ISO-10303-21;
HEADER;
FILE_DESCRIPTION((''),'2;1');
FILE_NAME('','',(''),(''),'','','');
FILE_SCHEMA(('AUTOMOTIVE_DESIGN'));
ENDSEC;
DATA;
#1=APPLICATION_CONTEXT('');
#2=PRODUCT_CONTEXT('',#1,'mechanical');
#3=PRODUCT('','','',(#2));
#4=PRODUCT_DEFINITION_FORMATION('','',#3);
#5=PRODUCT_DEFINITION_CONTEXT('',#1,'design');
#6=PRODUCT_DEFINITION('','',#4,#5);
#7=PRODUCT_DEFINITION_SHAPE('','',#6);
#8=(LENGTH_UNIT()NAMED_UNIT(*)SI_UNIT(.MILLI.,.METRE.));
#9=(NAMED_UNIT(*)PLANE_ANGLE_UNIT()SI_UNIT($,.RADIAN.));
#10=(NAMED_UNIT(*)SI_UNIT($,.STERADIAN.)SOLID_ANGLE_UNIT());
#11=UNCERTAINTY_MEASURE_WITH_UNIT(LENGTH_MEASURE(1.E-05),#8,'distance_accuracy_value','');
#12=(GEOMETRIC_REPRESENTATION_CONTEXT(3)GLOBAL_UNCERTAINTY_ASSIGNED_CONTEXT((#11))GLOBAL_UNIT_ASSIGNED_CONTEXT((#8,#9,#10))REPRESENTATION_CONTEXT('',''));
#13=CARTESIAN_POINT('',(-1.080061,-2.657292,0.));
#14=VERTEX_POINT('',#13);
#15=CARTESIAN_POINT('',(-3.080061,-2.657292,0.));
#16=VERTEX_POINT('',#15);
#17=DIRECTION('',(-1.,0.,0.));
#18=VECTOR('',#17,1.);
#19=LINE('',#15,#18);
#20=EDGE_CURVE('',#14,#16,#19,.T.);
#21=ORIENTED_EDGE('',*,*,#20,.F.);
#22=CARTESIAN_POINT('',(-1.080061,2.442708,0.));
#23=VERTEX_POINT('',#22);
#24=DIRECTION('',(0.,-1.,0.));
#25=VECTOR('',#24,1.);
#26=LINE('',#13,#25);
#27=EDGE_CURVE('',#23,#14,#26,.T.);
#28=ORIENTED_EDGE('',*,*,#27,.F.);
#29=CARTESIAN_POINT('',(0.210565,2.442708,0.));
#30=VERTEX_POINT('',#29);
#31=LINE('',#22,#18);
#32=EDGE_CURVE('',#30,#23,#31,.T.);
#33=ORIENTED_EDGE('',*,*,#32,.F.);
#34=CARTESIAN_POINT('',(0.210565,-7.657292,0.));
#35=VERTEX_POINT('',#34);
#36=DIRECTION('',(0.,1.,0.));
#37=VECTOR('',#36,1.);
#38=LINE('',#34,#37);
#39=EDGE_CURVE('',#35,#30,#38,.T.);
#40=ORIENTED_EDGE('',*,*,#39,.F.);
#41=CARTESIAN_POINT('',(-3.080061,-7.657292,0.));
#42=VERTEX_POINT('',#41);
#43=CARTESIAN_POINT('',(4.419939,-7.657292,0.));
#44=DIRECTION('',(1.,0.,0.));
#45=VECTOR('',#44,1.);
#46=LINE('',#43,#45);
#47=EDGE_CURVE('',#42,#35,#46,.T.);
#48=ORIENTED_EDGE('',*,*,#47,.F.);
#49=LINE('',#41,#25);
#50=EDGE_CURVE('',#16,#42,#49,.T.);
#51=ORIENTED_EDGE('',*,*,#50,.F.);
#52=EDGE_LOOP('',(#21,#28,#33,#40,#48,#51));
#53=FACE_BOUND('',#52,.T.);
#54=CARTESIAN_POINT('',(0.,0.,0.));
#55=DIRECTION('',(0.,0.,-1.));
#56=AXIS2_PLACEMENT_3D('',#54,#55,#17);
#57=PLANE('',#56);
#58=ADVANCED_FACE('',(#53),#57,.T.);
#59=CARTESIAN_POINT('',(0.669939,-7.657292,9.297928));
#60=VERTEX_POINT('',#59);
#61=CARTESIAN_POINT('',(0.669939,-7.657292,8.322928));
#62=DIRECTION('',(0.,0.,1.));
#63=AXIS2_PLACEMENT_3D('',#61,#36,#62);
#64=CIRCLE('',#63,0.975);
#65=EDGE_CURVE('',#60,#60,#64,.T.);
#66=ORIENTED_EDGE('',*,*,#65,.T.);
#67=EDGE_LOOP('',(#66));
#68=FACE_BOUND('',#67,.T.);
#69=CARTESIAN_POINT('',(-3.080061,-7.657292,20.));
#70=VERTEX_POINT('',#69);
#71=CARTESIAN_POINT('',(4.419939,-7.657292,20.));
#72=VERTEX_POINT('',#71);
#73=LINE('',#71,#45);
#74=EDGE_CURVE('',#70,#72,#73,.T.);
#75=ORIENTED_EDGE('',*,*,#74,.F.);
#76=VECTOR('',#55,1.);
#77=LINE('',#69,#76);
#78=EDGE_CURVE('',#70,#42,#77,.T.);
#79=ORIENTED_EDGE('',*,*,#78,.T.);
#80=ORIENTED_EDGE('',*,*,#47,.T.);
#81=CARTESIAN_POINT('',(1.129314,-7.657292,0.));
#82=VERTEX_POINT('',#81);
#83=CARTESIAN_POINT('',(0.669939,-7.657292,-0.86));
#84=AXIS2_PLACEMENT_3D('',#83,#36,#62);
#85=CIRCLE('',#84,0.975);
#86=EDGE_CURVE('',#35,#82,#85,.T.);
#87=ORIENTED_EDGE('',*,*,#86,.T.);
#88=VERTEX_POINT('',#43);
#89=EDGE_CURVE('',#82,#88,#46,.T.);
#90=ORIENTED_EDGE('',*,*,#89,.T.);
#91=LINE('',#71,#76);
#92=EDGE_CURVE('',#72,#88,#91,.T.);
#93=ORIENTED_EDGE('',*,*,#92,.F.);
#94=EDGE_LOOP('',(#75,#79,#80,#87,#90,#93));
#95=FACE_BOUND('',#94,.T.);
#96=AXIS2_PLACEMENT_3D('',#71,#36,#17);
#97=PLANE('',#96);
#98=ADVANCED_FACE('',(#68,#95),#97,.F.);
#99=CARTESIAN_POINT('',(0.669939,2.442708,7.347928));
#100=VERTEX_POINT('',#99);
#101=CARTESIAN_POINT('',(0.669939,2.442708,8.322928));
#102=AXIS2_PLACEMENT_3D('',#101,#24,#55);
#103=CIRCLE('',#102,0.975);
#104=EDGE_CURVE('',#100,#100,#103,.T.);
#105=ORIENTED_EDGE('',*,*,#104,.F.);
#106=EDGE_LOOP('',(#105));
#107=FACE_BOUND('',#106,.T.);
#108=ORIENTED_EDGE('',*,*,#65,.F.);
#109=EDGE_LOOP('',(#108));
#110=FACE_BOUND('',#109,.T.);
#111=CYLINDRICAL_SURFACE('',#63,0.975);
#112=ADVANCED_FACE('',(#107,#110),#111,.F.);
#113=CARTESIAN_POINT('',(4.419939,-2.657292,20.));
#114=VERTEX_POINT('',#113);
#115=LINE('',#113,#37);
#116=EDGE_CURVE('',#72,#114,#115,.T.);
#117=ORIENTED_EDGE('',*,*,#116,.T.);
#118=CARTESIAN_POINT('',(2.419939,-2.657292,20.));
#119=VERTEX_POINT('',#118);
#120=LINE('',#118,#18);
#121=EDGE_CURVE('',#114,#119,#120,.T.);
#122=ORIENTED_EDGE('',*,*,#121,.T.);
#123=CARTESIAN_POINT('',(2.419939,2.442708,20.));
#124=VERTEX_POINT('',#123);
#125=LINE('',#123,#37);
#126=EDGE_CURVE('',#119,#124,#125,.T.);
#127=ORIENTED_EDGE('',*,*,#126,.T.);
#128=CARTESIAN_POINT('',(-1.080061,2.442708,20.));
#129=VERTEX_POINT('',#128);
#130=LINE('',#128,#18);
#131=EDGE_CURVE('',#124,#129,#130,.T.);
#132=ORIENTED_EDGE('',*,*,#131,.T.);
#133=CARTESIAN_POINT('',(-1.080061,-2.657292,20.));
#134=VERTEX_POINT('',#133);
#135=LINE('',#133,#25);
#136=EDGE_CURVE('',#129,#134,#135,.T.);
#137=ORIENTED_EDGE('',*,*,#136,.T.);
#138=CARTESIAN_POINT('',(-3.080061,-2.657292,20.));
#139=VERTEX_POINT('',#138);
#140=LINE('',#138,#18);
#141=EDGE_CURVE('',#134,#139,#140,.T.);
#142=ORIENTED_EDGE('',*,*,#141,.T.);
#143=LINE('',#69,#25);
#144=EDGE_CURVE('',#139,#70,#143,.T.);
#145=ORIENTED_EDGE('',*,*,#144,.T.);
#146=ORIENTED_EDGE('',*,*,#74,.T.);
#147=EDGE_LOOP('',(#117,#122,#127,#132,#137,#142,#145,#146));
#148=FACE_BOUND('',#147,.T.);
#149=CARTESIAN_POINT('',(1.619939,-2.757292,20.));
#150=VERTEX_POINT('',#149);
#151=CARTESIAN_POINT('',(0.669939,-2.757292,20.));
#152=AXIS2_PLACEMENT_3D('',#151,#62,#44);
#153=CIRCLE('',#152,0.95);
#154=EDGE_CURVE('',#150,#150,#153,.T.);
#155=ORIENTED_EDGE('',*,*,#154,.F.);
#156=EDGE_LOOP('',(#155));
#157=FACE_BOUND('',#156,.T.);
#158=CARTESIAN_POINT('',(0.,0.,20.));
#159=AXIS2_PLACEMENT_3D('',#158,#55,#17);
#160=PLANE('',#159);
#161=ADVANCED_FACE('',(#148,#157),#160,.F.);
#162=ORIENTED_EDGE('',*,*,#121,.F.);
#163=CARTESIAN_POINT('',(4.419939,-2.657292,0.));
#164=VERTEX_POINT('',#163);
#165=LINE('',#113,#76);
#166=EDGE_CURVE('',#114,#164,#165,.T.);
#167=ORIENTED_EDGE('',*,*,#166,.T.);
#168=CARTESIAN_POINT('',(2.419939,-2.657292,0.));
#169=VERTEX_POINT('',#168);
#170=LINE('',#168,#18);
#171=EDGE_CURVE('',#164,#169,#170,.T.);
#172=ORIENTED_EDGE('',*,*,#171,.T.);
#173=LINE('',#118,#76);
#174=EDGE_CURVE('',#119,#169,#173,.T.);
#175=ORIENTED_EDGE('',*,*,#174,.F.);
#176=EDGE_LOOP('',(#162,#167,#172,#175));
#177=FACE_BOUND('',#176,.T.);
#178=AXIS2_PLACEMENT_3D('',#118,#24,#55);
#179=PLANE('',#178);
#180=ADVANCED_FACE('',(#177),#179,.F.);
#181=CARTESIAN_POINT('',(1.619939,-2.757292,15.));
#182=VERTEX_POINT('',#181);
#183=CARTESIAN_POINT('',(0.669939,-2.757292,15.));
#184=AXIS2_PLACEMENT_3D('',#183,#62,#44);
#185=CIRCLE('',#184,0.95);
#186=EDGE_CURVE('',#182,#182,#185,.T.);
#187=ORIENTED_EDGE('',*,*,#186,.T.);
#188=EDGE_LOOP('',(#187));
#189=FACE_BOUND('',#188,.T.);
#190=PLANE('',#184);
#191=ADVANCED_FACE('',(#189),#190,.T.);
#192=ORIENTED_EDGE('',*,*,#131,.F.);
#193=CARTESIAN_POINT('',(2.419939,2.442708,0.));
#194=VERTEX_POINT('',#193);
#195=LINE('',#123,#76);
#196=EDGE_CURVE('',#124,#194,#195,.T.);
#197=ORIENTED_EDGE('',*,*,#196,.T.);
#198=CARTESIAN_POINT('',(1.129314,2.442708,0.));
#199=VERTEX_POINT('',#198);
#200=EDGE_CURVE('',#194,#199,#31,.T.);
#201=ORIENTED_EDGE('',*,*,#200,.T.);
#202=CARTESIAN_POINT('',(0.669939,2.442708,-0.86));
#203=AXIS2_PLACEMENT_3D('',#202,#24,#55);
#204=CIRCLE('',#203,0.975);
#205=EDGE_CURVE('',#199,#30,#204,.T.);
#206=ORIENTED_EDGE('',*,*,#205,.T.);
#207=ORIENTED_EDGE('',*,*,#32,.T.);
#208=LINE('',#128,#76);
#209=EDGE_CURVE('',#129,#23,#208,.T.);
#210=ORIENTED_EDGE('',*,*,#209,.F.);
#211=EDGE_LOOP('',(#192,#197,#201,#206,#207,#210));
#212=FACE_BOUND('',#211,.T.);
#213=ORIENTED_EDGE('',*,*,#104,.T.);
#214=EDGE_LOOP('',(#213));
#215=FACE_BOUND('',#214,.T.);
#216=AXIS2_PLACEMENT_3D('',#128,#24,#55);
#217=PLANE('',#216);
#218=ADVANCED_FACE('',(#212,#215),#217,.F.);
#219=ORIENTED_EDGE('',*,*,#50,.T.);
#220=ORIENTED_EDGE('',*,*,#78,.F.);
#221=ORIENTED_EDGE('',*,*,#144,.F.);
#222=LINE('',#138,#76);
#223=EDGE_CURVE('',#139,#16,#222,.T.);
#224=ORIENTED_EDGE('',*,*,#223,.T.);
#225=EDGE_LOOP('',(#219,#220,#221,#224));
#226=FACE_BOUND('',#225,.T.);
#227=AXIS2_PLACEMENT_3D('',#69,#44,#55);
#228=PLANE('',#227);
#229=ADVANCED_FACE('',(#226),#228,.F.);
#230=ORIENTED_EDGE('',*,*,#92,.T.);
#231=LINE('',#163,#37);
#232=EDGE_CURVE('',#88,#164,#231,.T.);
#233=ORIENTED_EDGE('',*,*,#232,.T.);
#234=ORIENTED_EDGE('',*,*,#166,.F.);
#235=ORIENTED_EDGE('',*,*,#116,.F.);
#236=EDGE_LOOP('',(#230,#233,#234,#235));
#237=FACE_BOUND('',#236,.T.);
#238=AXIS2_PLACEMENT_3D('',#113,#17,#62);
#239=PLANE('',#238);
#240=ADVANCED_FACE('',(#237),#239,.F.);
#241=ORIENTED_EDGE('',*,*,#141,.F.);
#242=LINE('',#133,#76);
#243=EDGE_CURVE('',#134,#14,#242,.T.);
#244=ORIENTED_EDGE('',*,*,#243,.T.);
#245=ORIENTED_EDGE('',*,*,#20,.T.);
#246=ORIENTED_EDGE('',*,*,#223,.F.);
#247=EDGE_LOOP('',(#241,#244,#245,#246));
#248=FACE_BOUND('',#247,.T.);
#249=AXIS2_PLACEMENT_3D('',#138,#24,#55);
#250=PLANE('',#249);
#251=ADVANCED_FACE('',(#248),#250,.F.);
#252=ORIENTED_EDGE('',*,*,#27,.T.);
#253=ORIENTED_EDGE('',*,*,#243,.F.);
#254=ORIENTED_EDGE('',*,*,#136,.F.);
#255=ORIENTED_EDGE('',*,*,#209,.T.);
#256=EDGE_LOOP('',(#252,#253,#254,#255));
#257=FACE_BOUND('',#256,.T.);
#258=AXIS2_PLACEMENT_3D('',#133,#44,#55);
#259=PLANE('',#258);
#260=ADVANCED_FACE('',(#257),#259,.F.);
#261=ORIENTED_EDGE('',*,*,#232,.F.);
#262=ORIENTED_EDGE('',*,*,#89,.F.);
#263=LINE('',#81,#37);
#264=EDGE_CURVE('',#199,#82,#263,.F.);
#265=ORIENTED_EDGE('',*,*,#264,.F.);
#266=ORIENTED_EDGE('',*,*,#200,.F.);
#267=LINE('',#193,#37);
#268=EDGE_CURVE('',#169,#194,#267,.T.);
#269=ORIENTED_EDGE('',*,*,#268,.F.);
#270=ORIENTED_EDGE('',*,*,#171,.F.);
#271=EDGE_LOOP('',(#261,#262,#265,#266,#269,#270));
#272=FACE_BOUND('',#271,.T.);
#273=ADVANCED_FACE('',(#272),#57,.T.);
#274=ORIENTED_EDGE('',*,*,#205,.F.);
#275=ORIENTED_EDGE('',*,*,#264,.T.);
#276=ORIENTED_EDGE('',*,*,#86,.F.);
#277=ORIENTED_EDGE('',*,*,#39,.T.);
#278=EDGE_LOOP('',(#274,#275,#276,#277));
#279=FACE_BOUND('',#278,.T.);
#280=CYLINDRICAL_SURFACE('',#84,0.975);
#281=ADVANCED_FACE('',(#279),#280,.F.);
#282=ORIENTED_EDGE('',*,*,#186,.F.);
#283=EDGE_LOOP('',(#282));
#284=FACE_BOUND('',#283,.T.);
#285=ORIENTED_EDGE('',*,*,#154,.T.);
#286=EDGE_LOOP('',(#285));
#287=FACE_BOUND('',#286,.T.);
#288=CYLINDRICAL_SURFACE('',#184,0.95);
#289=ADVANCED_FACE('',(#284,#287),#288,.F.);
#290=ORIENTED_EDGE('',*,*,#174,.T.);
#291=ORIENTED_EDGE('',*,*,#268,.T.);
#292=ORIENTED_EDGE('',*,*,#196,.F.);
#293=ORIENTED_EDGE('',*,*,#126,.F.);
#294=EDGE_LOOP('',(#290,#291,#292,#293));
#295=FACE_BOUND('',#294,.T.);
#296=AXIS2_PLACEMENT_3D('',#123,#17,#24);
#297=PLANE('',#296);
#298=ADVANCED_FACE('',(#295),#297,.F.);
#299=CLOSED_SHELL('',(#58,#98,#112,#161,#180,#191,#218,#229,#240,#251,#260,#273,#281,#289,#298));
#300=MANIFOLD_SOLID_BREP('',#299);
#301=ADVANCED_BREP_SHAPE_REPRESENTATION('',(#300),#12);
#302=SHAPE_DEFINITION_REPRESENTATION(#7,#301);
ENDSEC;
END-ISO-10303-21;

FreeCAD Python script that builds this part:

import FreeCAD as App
import Part
import Sketcher

V = App.Vector
Q = App.Units.Quantity

doc = App.newDocument("Part")
body = doc.addObject("PartDesign::Body", "Body")

# Sketch on XY plane
sketch1 = body.newObject("Sketcher::SketchObject", "Sketch")
sketch1.AttachmentSupport = (doc.getObject("XY_Plane"), [""])
sketch1.MapMode = "FlatFace"
sketch1.addGeometry([
    Part.LineSegment(V(2.4, 2.4, 0), V(-1.1, 2.4, 0)),  # 0
    Part.LineSegment(V(-1.1, 2.4, 0), V(-1.1, -2.7, 0)),  # 1
    Part.LineSegment(V(-1.1, -2.7, 0), V(-3.1, -2.7, 0)),  # 2
    Part.LineSegment(V(-3.1, -2.7, 0), V(-3.1, -7.7, 0)),  # 3
    Part.LineSegment(V(-3.1, -7.7, 0), V(4.4, -7.7, 0)),  # 4
    Part.LineSegment(V(4.4, -7.7, 0), V(4.4, -2.7, 0)),  # 5
    Part.LineSegment(V(4.4, -2.7, 0), V(2.4, -2.7, 0)),  # 6
    Part.LineSegment(V(2.4, -2.7, 0), V(2.4, 2.4, 0)),  # 7
], False)
sketch1.addConstraint([
    Sketcher.Constraint("Coincident", 0, 2, 1, 1),
    Sketcher.Constraint("Coincident", 1, 2, 2, 1),
    Sketcher.Constraint("Coincident", 2, 2, 3, 1),
    Sketcher.Constraint("Coincident", 3, 2, 4, 1),
    Sketcher.Constraint("Coincident", 4, 2, 5, 1),
    Sketcher.Constraint("Coincident", 5, 2, 6, 1),
    Sketcher.Constraint("Coincident", 6, 2, 7, 1),
    Sketcher.Constraint("Coincident", 7, 2, 0, 1),
    Sketcher.Constraint("Horizontal", 0),
    Sketcher.Constraint("Vertical", 1),
    Sketcher.Constraint("Horizontal", 2),
    Sketcher.Constraint("Vertical", 3),
    Sketcher.Constraint("Horizontal", 4),
    Sketcher.Constraint("Vertical", 5),
    Sketcher.Constraint("Horizontal", 6),
    Sketcher.Constraint("Vertical", 7),
    Sketcher.Constraint("Horizontal", 2, 2, 5, 2),
    Sketcher.Constraint("Equal", 2, 6),
    Sketcher.Constraint("DistanceX", 2, 2, 2, 1, Q("2 mm")),
    Sketcher.Constraint("DistanceY", 3, 2, 3, 1, Q("5 mm")),
    Sketcher.Constraint("DistanceX", 0, 2, 0, 1, Q("3.5 mm")),
    Sketcher.Constraint("DistanceY", 1, 2, 1, 1, Q("5.1 mm")),
    Sketcher.Constraint("DistanceX", 0, 2, -1, 1, Q("1.080061 mm")),
    Sketcher.Constraint("DistanceY", -1, 1, 0, 2, Q("2.442708 mm")),
])
pad1 = body.newObject("PartDesign::Pad", "Pad")
pad1.Profile = sketch1
pad1.Length = 20

# Sketch on XY plane
sketch2 = body.newObject("Sketcher::SketchObject", "Sketch001")
sketch2.AttachmentSupport = (doc.getObject("XY_Plane"), [""])
sketch2.MapMode = "FlatFace"
sketch2.AttachmentOffset = App.Placement(V(0, 0, 20), App.Rotation())
sketch2.addGeometry(Part.Circle(V(0.7, -2.8, 0), V(0, 0, 1), 0.9), False)
sketch2.addConstraint([
    Sketcher.Constraint("Diameter", 0, Q("1.9 mm")),
    Sketcher.Constraint("DistanceX", -1, 1, 0, 3, Q("0.669939 mm")),
    Sketcher.Constraint("DistanceY", 0, 3, -1, 1, Q("2.757292 mm")),
])
pocket1 = body.newObject("PartDesign::Pocket", "Pocket")
pocket1.Profile = sketch2
pocket1.Length = 5

# Sketch on XZ plane
sketch3 = body.newObject("Sketcher::SketchObject", "Sketch002")
sketch3.AttachmentSupport = (doc.getObject("XZ_Plane"), [""])
sketch3.MapMode = "FlatFace"
sketch3.AttachmentOffset = App.Placement(V(0, 0, -2.442708), App.Rotation())
sketch3.addGeometry([
    Part.Circle(V(0.7, 8.3, 0), V(0, 0, 1), 1),
    Part.Circle(V(0.7, -0.9, 0), V(0, 0, 1), 1),
], False)
sketch3.addConstraint([
    Sketcher.Constraint("Equal", 0, 1),
    Sketcher.Constraint("Vertical", 0, 3, 1, 3),
    Sketcher.Constraint("Diameter", 0, Q("1.95 mm")),
    Sketcher.Constraint("DistanceY", 1, 3, -1, 1, Q("0.86 mm")),
    Sketcher.Constraint("DistanceX", -1, 1, 0, 3, Q("0.669939 mm")),
    Sketcher.Constraint("DistanceY", -1, 1, 0, 3, Q("8.322928 mm")),
])
pocket2 = body.newObject("PartDesign::Pocket", "Pocket001")
pocket2.Profile = sketch3
pocket2.Type = "ThroughAll"
pocket2.Midplane = True

doc.recompute()
